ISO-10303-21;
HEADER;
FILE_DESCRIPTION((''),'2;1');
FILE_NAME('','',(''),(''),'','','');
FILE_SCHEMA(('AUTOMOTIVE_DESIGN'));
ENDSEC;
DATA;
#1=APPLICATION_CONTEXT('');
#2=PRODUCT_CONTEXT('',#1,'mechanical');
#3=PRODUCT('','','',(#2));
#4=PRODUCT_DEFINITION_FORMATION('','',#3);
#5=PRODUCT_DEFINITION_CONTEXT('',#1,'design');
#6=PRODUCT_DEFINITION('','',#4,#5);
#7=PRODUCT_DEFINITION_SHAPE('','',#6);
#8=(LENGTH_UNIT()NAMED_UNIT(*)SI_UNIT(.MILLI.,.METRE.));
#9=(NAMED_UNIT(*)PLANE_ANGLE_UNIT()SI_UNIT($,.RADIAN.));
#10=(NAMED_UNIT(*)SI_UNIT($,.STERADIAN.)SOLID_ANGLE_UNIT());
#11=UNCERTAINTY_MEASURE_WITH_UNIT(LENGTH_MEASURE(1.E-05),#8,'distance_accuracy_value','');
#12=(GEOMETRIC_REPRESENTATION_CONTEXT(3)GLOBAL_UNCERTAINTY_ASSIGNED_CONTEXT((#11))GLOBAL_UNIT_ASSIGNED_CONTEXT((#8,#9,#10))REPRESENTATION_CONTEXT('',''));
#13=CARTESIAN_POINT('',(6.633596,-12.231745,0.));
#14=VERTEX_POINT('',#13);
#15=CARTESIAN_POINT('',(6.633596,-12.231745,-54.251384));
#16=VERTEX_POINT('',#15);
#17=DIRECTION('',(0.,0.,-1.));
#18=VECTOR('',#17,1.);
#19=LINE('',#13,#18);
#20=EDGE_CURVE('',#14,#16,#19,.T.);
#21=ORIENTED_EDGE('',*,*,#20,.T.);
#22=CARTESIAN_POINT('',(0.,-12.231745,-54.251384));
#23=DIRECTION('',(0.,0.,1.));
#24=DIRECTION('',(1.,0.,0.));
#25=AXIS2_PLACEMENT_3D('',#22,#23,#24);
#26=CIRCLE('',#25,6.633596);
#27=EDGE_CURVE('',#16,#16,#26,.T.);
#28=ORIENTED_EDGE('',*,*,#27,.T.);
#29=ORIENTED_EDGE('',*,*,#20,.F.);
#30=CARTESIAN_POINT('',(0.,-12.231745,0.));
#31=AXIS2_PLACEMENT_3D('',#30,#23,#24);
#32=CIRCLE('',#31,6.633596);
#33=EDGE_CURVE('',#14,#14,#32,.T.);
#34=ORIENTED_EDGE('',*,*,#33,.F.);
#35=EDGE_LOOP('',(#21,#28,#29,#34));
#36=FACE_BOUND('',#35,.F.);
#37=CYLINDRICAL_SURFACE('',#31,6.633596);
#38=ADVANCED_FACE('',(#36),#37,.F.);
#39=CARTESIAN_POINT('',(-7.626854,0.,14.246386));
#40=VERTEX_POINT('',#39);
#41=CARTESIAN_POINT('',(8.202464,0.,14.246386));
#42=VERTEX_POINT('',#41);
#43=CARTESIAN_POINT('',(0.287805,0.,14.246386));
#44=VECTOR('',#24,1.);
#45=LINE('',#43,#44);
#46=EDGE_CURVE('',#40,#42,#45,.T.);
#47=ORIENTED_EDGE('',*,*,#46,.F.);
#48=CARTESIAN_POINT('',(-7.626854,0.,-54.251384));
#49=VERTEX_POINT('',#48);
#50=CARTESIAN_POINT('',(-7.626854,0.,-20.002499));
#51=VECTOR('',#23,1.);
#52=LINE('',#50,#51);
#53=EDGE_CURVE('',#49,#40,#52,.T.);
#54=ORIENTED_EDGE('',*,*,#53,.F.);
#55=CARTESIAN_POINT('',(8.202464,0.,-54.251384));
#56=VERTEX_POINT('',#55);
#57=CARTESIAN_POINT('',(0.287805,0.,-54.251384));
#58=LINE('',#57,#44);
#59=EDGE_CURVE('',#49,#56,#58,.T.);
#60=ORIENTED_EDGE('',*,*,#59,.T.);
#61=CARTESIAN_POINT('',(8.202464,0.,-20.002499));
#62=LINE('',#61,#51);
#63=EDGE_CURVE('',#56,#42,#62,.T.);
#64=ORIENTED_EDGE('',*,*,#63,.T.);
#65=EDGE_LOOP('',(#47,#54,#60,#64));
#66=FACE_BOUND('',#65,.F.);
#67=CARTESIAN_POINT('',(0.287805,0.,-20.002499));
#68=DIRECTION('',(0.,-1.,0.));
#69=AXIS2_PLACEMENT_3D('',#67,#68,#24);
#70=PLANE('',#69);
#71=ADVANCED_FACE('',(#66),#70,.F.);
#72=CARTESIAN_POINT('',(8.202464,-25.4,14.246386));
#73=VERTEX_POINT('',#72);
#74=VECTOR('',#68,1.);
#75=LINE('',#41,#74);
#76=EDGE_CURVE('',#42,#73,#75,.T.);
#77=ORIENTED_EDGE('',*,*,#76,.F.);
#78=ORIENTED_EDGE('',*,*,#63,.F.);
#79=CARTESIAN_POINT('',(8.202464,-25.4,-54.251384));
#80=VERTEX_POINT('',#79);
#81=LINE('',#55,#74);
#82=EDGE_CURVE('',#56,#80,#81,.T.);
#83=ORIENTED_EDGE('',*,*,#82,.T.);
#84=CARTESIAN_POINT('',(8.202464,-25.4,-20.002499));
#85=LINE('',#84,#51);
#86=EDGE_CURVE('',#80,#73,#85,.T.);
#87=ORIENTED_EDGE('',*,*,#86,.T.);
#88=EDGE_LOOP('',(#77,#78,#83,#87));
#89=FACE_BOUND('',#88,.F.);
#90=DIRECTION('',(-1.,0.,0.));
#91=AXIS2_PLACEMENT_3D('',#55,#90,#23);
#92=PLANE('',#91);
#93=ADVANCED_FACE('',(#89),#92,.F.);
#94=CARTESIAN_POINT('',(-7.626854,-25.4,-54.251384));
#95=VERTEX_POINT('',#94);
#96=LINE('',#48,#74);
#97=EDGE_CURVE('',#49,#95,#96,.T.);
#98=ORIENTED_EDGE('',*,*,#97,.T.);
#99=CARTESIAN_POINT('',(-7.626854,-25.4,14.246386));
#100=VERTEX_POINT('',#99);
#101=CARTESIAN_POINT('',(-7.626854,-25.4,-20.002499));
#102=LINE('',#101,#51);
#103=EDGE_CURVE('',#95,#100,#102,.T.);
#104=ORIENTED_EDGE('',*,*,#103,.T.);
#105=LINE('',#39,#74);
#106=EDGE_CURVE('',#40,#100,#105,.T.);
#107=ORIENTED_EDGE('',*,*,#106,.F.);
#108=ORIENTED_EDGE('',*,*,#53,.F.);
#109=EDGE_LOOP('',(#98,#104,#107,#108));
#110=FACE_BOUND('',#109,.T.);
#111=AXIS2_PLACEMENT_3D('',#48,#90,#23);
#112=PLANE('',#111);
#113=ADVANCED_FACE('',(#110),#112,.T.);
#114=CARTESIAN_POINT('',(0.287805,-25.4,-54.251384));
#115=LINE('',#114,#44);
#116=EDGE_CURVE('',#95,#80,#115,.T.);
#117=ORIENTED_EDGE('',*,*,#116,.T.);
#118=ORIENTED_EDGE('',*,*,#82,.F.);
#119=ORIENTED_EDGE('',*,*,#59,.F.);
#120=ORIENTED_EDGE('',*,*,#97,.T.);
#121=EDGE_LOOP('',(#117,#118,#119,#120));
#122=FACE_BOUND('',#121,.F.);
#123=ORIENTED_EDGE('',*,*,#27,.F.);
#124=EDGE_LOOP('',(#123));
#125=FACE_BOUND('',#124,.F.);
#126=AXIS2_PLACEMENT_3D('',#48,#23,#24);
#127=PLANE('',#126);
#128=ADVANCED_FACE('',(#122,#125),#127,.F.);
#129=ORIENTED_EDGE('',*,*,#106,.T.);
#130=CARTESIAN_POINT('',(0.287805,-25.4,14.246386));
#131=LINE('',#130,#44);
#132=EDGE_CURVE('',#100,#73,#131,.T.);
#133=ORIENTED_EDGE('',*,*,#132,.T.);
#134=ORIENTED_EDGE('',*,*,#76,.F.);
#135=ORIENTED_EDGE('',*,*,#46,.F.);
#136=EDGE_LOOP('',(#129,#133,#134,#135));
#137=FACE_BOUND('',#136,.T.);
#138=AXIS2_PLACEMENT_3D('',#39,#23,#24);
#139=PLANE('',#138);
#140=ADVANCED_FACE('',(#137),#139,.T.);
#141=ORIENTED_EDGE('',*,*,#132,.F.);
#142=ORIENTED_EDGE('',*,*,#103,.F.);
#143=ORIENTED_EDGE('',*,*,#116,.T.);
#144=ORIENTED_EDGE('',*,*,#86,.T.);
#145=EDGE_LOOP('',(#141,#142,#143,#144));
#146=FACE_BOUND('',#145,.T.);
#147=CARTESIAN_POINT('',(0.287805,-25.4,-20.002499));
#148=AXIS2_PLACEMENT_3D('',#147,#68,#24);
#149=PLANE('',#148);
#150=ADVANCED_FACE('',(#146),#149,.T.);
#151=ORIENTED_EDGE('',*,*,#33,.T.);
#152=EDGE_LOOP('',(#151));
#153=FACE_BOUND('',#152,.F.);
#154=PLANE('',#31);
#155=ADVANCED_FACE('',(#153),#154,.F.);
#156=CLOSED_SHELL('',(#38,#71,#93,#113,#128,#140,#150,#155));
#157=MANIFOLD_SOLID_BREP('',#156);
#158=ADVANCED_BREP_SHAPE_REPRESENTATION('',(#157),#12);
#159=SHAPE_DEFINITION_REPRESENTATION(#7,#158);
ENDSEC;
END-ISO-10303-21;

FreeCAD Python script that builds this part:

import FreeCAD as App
import Part
import Sketcher
from FreeCAD import Vector
Q = App.Units.Quantity

doc = App.newDocument("Part")
body = doc.addObject("PartDesign::Body", "Body")

sketch1 = doc.addObject("Sketcher::SketchObject", "Sketch")
body.addObject(sketch1)
sketch1.AttachmentSupport = (doc.XZ_Plane, [""])
sketch1.MapMode = "FlatFace"
sketch1.addGeometry([
    Part.LineSegment(Vector(-8, 14, 0), Vector(-8, -54, 0)),
    Part.LineSegment(Vector(-8, -54, 0), Vector(8, -54, 0)),
    Part.LineSegment(Vector(8, -54, 0), Vector(8, 14, 0)),
    Part.LineSegment(Vector(8, 14, 0), Vector(-8, 14, 0)),
], False)
sketch1.addConstraint([
    Sketcher.Constraint("Coincident", 0, 2, 1, 1),
    Sketcher.Constraint("Coincident", 1, 2, 2, 1),
    Sketcher.Constraint("Coincident", 2, 2, 3, 1),
    Sketcher.Constraint("Coincident", 3, 2, 0, 1),
    Sketcher.Constraint("Vertical", 0),
    Sketcher.Constraint("Horizontal", 1),
    Sketcher.Constraint("Vertical", 2),
    Sketcher.Constraint("Horizontal", 3),
    Sketcher.Constraint("DistanceY", 0, 2, 0, 1, Q("68.497769 mm")),
    Sketcher.Constraint("DistanceX", 1, 1, 1, 2, Q("15.829317 mm")),
    Sketcher.Constraint("DistanceX", 0, 2, -1, 1, Q("7.626854 mm")),
    Sketcher.Constraint("DistanceY", 0, 2, -1, 1, Q("54.251384 mm")),
])
pad1 = doc.addObject("PartDesign::Pad", "Pad")
body.addObject(pad1)
pad1.Profile = sketch1
pad1.Length = Q("1 in")

sketch2 = doc.addObject("Sketcher::SketchObject", "Sketch001")
body.addObject(sketch2)
sketch2.AttachmentSupport = (doc.XY_Plane, [""])
sketch2.MapMode = "FlatFace"
sketch2.addGeometry(Part.Circle(Vector(0, -12, 0), Vector(0, 0, 1), 7), False)
sketch2.addConstraint([
    Sketcher.Constraint("PointOnObject", 0, 3, -2),
    Sketcher.Constraint("Diameter", 0, Q("13.267192 mm")),
    Sketcher.Constraint("DistanceY", 0, 3, -1, 1, Q("12.231745 mm")),
])
pocket1 = doc.addObject("PartDesign::Pocket", "Pocket")
body.addObject(pocket1)
pocket1.Profile = sketch2
pocket1.Length = Q("3 in")

doc.recompute()
